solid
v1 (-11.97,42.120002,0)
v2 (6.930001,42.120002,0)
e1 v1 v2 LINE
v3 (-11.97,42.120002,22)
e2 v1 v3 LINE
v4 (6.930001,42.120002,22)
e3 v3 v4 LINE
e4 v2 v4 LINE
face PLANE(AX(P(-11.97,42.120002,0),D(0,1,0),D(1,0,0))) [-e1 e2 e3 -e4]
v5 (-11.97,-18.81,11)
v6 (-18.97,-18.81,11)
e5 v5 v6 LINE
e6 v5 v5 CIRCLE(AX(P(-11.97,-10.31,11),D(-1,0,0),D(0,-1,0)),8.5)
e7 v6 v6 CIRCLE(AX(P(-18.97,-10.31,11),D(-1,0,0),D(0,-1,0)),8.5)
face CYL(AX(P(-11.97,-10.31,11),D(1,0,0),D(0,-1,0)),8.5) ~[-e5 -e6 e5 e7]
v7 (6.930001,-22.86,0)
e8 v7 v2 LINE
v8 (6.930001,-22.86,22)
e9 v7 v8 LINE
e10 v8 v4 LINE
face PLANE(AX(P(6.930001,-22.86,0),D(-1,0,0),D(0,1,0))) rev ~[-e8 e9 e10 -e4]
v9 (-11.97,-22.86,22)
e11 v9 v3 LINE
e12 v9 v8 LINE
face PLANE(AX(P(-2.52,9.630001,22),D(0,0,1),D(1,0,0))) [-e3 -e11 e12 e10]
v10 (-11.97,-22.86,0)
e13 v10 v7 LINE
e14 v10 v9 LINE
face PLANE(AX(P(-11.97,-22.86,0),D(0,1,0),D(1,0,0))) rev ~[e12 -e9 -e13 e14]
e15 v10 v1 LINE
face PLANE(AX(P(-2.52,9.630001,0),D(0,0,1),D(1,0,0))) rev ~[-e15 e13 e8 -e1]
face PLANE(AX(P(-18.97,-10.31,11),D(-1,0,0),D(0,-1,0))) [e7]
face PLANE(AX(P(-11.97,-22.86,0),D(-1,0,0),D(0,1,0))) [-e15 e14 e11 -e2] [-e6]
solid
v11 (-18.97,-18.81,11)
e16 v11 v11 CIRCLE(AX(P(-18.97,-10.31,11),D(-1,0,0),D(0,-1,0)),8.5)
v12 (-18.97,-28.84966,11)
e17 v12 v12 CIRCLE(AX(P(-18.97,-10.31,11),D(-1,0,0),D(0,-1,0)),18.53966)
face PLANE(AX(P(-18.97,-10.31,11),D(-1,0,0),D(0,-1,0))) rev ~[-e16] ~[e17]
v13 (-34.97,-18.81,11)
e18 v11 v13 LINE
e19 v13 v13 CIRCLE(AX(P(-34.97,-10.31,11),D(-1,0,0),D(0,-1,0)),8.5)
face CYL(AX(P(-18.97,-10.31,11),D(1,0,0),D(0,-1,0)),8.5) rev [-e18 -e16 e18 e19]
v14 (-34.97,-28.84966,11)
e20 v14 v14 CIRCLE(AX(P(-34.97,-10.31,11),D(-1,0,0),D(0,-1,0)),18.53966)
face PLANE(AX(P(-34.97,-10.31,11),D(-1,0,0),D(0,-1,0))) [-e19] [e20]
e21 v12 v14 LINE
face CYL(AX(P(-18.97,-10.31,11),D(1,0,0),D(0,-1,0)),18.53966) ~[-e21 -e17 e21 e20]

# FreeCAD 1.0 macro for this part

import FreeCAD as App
import Part
import Sketcher


def add_polygon(sketch, points):
    """Adds a closed chain of lines whose ends are joined by coincident constraints."""
    first, n = sketch.GeometryCount, len(points)
    for a, b in zip(points, points[1:] + points[:1]):
        sketch.addGeometry(Part.LineSegment(App.Vector(*a, 0), App.Vector(*b, 0)), False)
    for i in range(n):
        sketch.addConstraint(Sketcher.Constraint("Coincident", first + i, 2, first + (i + 1) % n, 1))

doc = App.newDocument("Part")
params = doc.addObject("Spreadsheet::Sheet", "Params")
for row, (alias, value) in enumerate([
    ("sketch1_width", "18.900001 mm"),
    ("pad1_length", "22 mm"),
    ("sketch2_diameter", "17 mm"),
    ("pad2_length", "7 mm"),
    ("sketch3_diameter", "17 mm"),
    ("pad3_length", "16 mm"),
], start=1):
    params.set(f"A{row}", alias)
    params.set(f"B{row}", "=" + value)
    params.setAlias(f"B{row}", alias)

body = doc.addObject("PartDesign::Body", "Body")

# Sketch on XY plane
sketch1 = doc.addObject("Sketcher::SketchObject", "Sketch")
body.addObject(sketch1)
sketch1.AttachmentSupport = (doc.XY_Plane, [""])
sketch1.MapMode = "FlatFace"
add_polygon(sketch1, [(-12, 42), (-12, -23), (7, -23), (7, 42)])  # lines 0-3
sketch1.addConstraint(Sketcher.Constraint("Vertical", 0))
sketch1.addConstraint(Sketcher.Constraint("Horizontal", 1))
sketch1.addConstraint(Sketcher.Constraint("Vertical", 2))
sketch1.addConstraint(Sketcher.Constraint("Horizontal", 3))
sketch1.addConstraint(Sketcher.Constraint("DistanceX", 1, 1, 1, 2, 18.900001))
sketch1.addConstraint(Sketcher.Constraint("DistanceX", 0, 2, -1, 1, 11.97))
sketch1.addConstraint(Sketcher.Constraint("DistanceY", 0, 2, -1, 1, 22.86))
sketch1.addConstraint(Sketcher.Constraint("DistanceY", 0, 2, 0, 1, 64.980002))
sketch1.setExpression("Constraints[8]", "Params.sketch1_width")
pad1 = doc.addObject("PartDesign::Pad", "Pad")
body.addObject(pad1)
pad1.Profile = sketch1
pad1.setExpression("Length", "Params.pad1_length")

# Sketch on YZ plane
sketch2 = doc.addObject("Sketcher::SketchObject", "Sketch001")
body.addObject(sketch2)
sketch2.AttachmentSupport = (doc.YZ_Plane, [""])
sketch2.MapMode = "FlatFace"
sketch2.AttachmentOffset = App.Placement(App.Vector(0, 0, -11.97), App.Rotation())
sketch2.addGeometry(Part.Circle(App.Vector(-10, 11, 0), App.Vector(0, 0, 1), 8), False)
sketch2.addConstraint(Sketcher.Constraint("Diameter", 0, 17.0))
sketch2.addConstraint(Sketcher.Constraint("DistanceY", -1, 1, 0, 3, 11.0))
sketch2.addConstraint(Sketcher.Constraint("DistanceX", 0, 3, -1, 1, 10.31))
sketch2.setExpression("Constraints[0]", "Params.sketch2_diameter")
pad2 = doc.addObject("PartDesign::Pad", "Pad001")
body.addObject(pad2)
pad2.Profile = sketch2
pad2.setExpression("Length", "Params.pad2_length")
pad2.Reversed = True
body2 = doc.addObject("PartDesign::Body", "Body001")

# Sketch on YZ plane
sketch3 = doc.addObject("Sketcher::SketchObject", "Sketch002")
body2.addObject(sketch3)
sketch3.AttachmentSupport = (doc.getObject("YZ_Plane001"), [""])
sketch3.MapMode = "FlatFace"
sketch3.AttachmentOffset = App.Placement(App.Vector(0, 0, -18.97), App.Rotation())
sketch3.addGeometry(Part.Circle(App.Vector(-10, 11, 0), App.Vector(0, 0, 1), 19), False)
sketch3.addGeometry(Part.Circle(App.Vector(-10, 11, 0), App.Vector(0, 0, 1), 8), False)
sketch3.addConstraint(Sketcher.Constraint("Coincident", 1, 3, 0, 3))
sketch3.addConstraint(Sketcher.Constraint("Diameter", 1, 17.0))
sketch3.addConstraint(Sketcher.Constraint("DistanceY", -1, 1, 0, 3, 11.0))
sketch3.addConstraint(Sketcher.Constraint("Diameter", 0, 37.07932))
sketch3.addConstraint(Sketcher.Constraint("DistanceX", 0, 3, -1, 1, 10.31))
sketch3.setExpression("Constraints[1]", "Params.sketch3_diameter")
pad3 = doc.addObject("PartDesign::Pad", "Pad002")
body2.addObject(pad3)
pad3.Profile = sketch3
pad3.setExpression("Length", "Params.pad3_length")
pad3.Reversed = True

doc.recompute()
